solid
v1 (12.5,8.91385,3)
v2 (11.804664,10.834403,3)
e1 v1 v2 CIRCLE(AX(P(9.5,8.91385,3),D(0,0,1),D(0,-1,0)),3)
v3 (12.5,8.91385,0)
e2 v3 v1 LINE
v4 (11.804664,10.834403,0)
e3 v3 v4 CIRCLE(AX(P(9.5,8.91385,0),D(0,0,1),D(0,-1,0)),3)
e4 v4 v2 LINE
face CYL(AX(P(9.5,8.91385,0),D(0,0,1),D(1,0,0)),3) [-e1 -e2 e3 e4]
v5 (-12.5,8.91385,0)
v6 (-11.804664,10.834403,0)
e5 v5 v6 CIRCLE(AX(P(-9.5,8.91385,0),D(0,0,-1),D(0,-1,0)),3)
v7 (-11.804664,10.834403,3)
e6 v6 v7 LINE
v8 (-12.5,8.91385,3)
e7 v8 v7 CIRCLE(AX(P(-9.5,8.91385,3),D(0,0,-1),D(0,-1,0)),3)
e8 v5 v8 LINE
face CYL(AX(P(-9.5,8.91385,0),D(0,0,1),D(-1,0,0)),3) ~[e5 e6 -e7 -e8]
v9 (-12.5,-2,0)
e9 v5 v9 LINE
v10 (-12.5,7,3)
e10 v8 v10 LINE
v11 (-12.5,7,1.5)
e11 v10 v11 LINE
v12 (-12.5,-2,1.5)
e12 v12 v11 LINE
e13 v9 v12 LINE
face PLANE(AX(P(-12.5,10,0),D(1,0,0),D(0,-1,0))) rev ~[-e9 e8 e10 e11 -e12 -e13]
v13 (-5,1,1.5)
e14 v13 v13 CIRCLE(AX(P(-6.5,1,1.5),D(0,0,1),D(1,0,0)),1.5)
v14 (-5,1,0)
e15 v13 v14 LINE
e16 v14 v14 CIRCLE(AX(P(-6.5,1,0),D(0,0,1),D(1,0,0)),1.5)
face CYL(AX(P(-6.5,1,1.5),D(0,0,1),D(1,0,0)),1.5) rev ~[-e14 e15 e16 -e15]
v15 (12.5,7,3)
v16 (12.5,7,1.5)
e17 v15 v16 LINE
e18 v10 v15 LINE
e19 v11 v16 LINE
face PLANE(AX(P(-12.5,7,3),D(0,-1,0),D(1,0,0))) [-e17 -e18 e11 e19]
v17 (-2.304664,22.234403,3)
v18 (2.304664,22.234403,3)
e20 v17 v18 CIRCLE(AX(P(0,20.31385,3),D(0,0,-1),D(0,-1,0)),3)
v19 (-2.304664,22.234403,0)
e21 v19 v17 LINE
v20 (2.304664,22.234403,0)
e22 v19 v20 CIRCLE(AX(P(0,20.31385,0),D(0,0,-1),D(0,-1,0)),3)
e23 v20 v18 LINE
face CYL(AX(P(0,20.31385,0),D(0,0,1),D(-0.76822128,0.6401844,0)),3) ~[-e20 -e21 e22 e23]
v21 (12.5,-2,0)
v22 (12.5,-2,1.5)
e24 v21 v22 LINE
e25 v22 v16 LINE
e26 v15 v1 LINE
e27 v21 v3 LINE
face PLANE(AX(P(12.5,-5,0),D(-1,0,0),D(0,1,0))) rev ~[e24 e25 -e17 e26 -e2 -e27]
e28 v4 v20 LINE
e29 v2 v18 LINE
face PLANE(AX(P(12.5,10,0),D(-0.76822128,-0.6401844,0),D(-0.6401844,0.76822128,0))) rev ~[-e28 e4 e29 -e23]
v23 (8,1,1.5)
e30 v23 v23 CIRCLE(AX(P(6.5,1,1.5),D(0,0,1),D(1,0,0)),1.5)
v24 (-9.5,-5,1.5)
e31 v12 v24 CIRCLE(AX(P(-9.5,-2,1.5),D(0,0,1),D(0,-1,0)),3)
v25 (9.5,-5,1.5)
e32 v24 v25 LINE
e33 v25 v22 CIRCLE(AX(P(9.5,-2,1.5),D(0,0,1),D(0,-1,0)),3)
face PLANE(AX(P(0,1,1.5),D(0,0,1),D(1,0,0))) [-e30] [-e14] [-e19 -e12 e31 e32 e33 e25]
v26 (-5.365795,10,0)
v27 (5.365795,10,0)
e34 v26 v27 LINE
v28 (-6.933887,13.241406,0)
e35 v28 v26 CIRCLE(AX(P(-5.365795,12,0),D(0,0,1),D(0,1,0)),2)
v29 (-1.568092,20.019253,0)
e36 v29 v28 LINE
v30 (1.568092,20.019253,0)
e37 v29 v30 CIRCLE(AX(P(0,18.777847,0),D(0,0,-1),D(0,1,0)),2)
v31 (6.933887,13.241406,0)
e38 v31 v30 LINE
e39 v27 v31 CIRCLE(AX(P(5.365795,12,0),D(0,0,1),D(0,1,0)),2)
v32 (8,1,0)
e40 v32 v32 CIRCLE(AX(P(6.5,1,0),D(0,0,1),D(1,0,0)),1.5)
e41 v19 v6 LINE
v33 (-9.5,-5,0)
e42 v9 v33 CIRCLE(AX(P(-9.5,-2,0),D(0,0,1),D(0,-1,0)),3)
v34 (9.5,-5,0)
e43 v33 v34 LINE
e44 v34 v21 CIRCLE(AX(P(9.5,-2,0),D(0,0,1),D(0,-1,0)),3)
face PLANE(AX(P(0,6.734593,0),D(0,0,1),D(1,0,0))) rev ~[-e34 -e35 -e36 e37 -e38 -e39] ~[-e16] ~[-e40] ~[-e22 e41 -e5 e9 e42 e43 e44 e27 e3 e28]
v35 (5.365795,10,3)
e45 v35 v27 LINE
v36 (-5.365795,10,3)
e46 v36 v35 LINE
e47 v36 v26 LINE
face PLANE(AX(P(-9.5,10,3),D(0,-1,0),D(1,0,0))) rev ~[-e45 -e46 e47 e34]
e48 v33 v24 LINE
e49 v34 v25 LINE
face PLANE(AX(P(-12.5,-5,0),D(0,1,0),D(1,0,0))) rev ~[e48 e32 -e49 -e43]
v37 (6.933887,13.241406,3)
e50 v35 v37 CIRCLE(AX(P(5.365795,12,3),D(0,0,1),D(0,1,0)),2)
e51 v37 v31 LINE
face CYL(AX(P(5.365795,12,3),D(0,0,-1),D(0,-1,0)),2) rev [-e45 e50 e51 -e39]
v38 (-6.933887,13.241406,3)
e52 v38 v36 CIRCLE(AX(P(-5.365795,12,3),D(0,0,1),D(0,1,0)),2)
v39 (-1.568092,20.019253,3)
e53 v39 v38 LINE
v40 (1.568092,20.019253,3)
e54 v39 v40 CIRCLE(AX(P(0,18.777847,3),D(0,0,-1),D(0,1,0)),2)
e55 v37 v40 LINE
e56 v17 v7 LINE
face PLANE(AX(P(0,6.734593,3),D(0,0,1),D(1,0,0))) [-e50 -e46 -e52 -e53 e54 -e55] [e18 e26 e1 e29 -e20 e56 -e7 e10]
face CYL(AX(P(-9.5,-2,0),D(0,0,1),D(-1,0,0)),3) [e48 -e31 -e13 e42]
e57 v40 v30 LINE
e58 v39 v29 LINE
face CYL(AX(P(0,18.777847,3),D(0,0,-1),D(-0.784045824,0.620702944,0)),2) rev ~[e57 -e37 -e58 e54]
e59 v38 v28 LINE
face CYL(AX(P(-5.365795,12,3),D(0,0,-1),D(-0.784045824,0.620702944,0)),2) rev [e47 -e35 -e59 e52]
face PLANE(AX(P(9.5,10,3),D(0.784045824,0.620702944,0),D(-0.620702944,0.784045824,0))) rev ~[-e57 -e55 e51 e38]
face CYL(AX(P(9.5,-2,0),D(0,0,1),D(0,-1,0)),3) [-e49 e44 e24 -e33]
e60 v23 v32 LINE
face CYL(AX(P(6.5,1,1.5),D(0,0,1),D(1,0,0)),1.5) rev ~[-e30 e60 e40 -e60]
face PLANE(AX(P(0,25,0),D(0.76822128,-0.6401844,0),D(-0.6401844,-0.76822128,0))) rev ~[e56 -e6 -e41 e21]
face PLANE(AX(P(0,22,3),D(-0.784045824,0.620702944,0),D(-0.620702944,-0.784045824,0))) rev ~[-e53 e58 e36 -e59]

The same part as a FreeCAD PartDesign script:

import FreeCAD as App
import Part
import Sketcher
from FreeCAD import Vector
Q = App.Units.Quantity


def edges_at(feature, points):
    """Names of the edges that pass closest to the given points."""
    edges = feature.Shape.Edges
    near = lambda p: min(range(len(edges)), key=lambda i: edges[i].distToShape(Part.Vertex(*p))[0])
    return sorted({f"Edge{near(p) + 1}" for p in points})

doc = App.newDocument("Part")
body = doc.addObject("PartDesign::Body", "Body")
body.AllowCompound = True

# Sketch on XY plane
sketch1 = body.newObject("Sketcher::SketchObject", "Sketch")
sketch1.AttachmentSupport = (doc.getObject("XY_Plane"), [""])
sketch1.MapMode = "FlatFace"
sketch1.AttachmentOffset = App.Placement(Vector(0, 0, 1.5), App.Rotation())
sketch1.addGeometry([
    Part.Circle(Vector(-6.5, 1, 0), Vector(0, 0, 1), 1.5),
    Part.Circle(Vector(6.5, 1, 0), Vector(0, 0, 1), 1.5),
], False)
sketch1.addConstraint([
    Sketcher.Constraint("Equal", 0, 1),
    Sketcher.Constraint("Symmetric", 0, 3, 1, 3, -2),
    Sketcher.Constraint("Diameter", 0, Q("3 mm")),
    Sketcher.Constraint("DistanceY", -1, 1, 0, 3, Q("1 mm")),
    Sketcher.Constraint("DistanceX", 0, 3, 1, 3, Q("13 mm")),
])
pad1 = body.newObject("PartDesign::Pad", "Pad")
pad1.Profile = sketch1
pad1.Length = 1.5
pad1.Reversed = True
body2 = doc.addObject("PartDesign::Body", "Body001")

# Sketch on XY plane
sketch2 = body2.newObject("Sketcher::SketchObject", "Sketch001")
sketch2.AttachmentSupport = (doc.getObject("XY_Plane001"), [""])
sketch2.MapMode = "FlatFace"
sketch2.AttachmentOffset = App.Placement(Vector(0, 0, 3), App.Rotation())
sketch2.addGeometry([
    Part.LineSegment(Vector(0, 22, 0), Vector(-10, 10, 0)),
    Part.LineSegment(Vector(-10, 10, 0), Vector(10, 10, 0)),
    Part.LineSegment(Vector(10, 10, 0), Vector(0, 22, 0)),
], False)
sketch2.addConstraint([
    Sketcher.Constraint("Coincident", 0, 2, 1, 1),
    Sketcher.Constraint("Coincident", 1, 2, 2, 1),
    Sketcher.Constraint("Coincident", 2, 2, 0, 1),
    Sketcher.Constraint("Horizontal", 1),
    Sketcher.Constraint("PointOnObject", 2, 2, -2),
    Sketcher.Constraint("Equal", 0, 2),
    Sketcher.Constraint("DistanceX", 1, 1, 1, 2, Q("19 mm")),
    Sketcher.Constraint("DistanceY", -1, 1, 0, 2, Q("10 mm")),
    Sketcher.Constraint("DistanceY", -1, 1, 2, 2, Q("22 mm")),
])
pad2 = body2.newObject("PartDesign::Pad", "Pad001")
pad2.Profile = sketch2
pad2.Length = 3
pad2.Reversed = True
body3 = doc.addObject("PartDesign::Body", "Body002")

# Sketch on XY plane
sketch3 = body3.newObject("Sketcher::SketchObject", "Sketch002")
sketch3.AttachmentSupport = (doc.getObject("XY_Plane002"), [""])
sketch3.MapMode = "FlatFace"
sketch3.AttachmentOffset = App.Placement(Vector(0, 0, 3), App.Rotation())
sketch3.addGeometry([
    Part.LineSegment(Vector(-12, 7, 0), Vector(-12, -5, 0)),
    Part.LineSegment(Vector(-12, -5, 0), Vector(12, -5, 0)),
    Part.LineSegment(Vector(12, -5, 0), Vector(12, 7, 0)),
    Part.LineSegment(Vector(12, 7, 0), Vector(-12, 7, 0)),
], False)
sketch3.addConstraint([
    Sketcher.Constraint("Coincident", 0, 2, 1, 1),
    Sketcher.Constraint("Coincident", 1, 2, 2, 1),
    Sketcher.Constraint("Coincident", 2, 2, 3, 1),
    Sketcher.Constraint("Coincident", 3, 2, 0, 1),
    Sketcher.Constraint("Vertical", 0),
    Sketcher.Constraint("Horizontal", 1),
    Sketcher.Constraint("Vertical", 2),
    Sketcher.Constraint("Horizontal", 3),
    Sketcher.Constraint("DistanceX", 1, 1, 1, 2, Q("25 mm")),
    Sketcher.Constraint("DistanceY", 0, 2, 0, 1, Q("12 mm")),
    Sketcher.Constraint("DistanceY", 0, 2, -1, 1, Q("5 mm")),
    Sketcher.Constraint("DistanceX", 0, 2, -1, 1, Q("12.5 mm")),
])
pad3 = body3.newObject("PartDesign::Pad", "Pad002")
pad3.Profile = sketch3
pad3.Length = 1.5
pad3.Reversed = True
body4 = doc.addObject("PartDesign::Body", "Body003")

# Sketch on XY plane
sketch4 = body4.newObject("Sketcher::SketchObject", "Sketch003")
sketch4.AttachmentSupport = (doc.getObject("XY_Plane003"), [""])
sketch4.MapMode = "FlatFace"
sketch4.addGeometry([
    Part.LineSegment(Vector(-12, -5, 0), Vector(12, -5, 0)),  # 0
    Part.LineSegment(Vector(12, -5, 0), Vector(12, 10, 0)),  # 1
    Part.LineSegment(Vector(12, 10, 0), Vector(0, 25, 0)),  # 2
    Part.LineSegment(Vector(0, 25, 0), Vector(-12, 10, 0)),  # 3
    Part.LineSegment(Vector(-12, 10, 0), Vector(-12, -5, 0)),  # 4
], False)
sketch4.addConstraint([
    Sketcher.Constraint("Coincident", 0, 2, 1, 1),
    Sketcher.Constraint("Coincident", 1, 2, 2, 1),
    Sketcher.Constraint("Coincident", 2, 2, 3, 1),
    Sketcher.Constraint("Coincident", 3, 2, 4, 1),
    Sketcher.Constraint("Coincident", 4, 2, 0, 1),
    Sketcher.Constraint("Horizontal", 0),
    Sketcher.Constraint("Vertical", 1),
    Sketcher.Constraint("Vertical", 4),
    Sketcher.Constraint("Symmetric", 1, 2, 3, 2, -2),
    Sketcher.Constraint("PointOnObject", 2, 2, -2),
    Sketcher.Constraint("DistanceX", 0, 1, 0, 2, Q("25 mm")),
    Sketcher.Constraint("DistanceY", 1, 1, 1, 2, Q("15 mm")),
    Sketcher.Constraint("DistanceY", 0, 2, -1, 1, Q("5 mm")),
    Sketcher.Constraint("DistanceY", -1, 1, 2, 2, Q("25 mm")),
])
pad4 = body4.newObject("PartDesign::Pad", "Pad003")
pad4.Profile = sketch4
pad4.Length = 3
doc.recompute()

boolean = body4.newObject("PartDesign::Boolean", "Boolean")
boolean.Type = "Cut"
boolean.addObjects([body3])
doc.recompute()

boolean2 = body4.newObject("PartDesign::Boolean", "Boolean001")
boolean2.Type = "Cut"
boolean2.addObjects([body2])
doc.recompute()

fillet = body4.newObject("PartDesign::Fillet", "Fillet")
fillet.Base = (boolean2, edges_at(boolean2, [(0, 22, 1.5), (-9.5, 10, 1.5), (9.5, 10, 1.5)]))
fillet.Radius = 2
doc.recompute()

fillet2 = body4.newObject("PartDesign::Fillet", "Fillet001")
fillet2.Base = (fillet, edges_at(fillet, [(-12.5, 10, 1.5), (12.5, 10, 1.5), (0, 25, 1.5)]))
fillet2.Radius = 3
doc.recompute()

fillet3 = body4.newObject("PartDesign::Fillet", "Fillet002")
fillet3.Base = (fillet2, edges_at(fillet2, [(12.5, -5, 0.75), (-12.5, -5, 0.75)]))
fillet3.Radius = 3
doc.recompute()

boolean3 = body4.newObject("PartDesign::Boolean", "Boolean002")
boolean3.Type = "Cut"
boolean3.addObjects([body])

doc.recompute()
